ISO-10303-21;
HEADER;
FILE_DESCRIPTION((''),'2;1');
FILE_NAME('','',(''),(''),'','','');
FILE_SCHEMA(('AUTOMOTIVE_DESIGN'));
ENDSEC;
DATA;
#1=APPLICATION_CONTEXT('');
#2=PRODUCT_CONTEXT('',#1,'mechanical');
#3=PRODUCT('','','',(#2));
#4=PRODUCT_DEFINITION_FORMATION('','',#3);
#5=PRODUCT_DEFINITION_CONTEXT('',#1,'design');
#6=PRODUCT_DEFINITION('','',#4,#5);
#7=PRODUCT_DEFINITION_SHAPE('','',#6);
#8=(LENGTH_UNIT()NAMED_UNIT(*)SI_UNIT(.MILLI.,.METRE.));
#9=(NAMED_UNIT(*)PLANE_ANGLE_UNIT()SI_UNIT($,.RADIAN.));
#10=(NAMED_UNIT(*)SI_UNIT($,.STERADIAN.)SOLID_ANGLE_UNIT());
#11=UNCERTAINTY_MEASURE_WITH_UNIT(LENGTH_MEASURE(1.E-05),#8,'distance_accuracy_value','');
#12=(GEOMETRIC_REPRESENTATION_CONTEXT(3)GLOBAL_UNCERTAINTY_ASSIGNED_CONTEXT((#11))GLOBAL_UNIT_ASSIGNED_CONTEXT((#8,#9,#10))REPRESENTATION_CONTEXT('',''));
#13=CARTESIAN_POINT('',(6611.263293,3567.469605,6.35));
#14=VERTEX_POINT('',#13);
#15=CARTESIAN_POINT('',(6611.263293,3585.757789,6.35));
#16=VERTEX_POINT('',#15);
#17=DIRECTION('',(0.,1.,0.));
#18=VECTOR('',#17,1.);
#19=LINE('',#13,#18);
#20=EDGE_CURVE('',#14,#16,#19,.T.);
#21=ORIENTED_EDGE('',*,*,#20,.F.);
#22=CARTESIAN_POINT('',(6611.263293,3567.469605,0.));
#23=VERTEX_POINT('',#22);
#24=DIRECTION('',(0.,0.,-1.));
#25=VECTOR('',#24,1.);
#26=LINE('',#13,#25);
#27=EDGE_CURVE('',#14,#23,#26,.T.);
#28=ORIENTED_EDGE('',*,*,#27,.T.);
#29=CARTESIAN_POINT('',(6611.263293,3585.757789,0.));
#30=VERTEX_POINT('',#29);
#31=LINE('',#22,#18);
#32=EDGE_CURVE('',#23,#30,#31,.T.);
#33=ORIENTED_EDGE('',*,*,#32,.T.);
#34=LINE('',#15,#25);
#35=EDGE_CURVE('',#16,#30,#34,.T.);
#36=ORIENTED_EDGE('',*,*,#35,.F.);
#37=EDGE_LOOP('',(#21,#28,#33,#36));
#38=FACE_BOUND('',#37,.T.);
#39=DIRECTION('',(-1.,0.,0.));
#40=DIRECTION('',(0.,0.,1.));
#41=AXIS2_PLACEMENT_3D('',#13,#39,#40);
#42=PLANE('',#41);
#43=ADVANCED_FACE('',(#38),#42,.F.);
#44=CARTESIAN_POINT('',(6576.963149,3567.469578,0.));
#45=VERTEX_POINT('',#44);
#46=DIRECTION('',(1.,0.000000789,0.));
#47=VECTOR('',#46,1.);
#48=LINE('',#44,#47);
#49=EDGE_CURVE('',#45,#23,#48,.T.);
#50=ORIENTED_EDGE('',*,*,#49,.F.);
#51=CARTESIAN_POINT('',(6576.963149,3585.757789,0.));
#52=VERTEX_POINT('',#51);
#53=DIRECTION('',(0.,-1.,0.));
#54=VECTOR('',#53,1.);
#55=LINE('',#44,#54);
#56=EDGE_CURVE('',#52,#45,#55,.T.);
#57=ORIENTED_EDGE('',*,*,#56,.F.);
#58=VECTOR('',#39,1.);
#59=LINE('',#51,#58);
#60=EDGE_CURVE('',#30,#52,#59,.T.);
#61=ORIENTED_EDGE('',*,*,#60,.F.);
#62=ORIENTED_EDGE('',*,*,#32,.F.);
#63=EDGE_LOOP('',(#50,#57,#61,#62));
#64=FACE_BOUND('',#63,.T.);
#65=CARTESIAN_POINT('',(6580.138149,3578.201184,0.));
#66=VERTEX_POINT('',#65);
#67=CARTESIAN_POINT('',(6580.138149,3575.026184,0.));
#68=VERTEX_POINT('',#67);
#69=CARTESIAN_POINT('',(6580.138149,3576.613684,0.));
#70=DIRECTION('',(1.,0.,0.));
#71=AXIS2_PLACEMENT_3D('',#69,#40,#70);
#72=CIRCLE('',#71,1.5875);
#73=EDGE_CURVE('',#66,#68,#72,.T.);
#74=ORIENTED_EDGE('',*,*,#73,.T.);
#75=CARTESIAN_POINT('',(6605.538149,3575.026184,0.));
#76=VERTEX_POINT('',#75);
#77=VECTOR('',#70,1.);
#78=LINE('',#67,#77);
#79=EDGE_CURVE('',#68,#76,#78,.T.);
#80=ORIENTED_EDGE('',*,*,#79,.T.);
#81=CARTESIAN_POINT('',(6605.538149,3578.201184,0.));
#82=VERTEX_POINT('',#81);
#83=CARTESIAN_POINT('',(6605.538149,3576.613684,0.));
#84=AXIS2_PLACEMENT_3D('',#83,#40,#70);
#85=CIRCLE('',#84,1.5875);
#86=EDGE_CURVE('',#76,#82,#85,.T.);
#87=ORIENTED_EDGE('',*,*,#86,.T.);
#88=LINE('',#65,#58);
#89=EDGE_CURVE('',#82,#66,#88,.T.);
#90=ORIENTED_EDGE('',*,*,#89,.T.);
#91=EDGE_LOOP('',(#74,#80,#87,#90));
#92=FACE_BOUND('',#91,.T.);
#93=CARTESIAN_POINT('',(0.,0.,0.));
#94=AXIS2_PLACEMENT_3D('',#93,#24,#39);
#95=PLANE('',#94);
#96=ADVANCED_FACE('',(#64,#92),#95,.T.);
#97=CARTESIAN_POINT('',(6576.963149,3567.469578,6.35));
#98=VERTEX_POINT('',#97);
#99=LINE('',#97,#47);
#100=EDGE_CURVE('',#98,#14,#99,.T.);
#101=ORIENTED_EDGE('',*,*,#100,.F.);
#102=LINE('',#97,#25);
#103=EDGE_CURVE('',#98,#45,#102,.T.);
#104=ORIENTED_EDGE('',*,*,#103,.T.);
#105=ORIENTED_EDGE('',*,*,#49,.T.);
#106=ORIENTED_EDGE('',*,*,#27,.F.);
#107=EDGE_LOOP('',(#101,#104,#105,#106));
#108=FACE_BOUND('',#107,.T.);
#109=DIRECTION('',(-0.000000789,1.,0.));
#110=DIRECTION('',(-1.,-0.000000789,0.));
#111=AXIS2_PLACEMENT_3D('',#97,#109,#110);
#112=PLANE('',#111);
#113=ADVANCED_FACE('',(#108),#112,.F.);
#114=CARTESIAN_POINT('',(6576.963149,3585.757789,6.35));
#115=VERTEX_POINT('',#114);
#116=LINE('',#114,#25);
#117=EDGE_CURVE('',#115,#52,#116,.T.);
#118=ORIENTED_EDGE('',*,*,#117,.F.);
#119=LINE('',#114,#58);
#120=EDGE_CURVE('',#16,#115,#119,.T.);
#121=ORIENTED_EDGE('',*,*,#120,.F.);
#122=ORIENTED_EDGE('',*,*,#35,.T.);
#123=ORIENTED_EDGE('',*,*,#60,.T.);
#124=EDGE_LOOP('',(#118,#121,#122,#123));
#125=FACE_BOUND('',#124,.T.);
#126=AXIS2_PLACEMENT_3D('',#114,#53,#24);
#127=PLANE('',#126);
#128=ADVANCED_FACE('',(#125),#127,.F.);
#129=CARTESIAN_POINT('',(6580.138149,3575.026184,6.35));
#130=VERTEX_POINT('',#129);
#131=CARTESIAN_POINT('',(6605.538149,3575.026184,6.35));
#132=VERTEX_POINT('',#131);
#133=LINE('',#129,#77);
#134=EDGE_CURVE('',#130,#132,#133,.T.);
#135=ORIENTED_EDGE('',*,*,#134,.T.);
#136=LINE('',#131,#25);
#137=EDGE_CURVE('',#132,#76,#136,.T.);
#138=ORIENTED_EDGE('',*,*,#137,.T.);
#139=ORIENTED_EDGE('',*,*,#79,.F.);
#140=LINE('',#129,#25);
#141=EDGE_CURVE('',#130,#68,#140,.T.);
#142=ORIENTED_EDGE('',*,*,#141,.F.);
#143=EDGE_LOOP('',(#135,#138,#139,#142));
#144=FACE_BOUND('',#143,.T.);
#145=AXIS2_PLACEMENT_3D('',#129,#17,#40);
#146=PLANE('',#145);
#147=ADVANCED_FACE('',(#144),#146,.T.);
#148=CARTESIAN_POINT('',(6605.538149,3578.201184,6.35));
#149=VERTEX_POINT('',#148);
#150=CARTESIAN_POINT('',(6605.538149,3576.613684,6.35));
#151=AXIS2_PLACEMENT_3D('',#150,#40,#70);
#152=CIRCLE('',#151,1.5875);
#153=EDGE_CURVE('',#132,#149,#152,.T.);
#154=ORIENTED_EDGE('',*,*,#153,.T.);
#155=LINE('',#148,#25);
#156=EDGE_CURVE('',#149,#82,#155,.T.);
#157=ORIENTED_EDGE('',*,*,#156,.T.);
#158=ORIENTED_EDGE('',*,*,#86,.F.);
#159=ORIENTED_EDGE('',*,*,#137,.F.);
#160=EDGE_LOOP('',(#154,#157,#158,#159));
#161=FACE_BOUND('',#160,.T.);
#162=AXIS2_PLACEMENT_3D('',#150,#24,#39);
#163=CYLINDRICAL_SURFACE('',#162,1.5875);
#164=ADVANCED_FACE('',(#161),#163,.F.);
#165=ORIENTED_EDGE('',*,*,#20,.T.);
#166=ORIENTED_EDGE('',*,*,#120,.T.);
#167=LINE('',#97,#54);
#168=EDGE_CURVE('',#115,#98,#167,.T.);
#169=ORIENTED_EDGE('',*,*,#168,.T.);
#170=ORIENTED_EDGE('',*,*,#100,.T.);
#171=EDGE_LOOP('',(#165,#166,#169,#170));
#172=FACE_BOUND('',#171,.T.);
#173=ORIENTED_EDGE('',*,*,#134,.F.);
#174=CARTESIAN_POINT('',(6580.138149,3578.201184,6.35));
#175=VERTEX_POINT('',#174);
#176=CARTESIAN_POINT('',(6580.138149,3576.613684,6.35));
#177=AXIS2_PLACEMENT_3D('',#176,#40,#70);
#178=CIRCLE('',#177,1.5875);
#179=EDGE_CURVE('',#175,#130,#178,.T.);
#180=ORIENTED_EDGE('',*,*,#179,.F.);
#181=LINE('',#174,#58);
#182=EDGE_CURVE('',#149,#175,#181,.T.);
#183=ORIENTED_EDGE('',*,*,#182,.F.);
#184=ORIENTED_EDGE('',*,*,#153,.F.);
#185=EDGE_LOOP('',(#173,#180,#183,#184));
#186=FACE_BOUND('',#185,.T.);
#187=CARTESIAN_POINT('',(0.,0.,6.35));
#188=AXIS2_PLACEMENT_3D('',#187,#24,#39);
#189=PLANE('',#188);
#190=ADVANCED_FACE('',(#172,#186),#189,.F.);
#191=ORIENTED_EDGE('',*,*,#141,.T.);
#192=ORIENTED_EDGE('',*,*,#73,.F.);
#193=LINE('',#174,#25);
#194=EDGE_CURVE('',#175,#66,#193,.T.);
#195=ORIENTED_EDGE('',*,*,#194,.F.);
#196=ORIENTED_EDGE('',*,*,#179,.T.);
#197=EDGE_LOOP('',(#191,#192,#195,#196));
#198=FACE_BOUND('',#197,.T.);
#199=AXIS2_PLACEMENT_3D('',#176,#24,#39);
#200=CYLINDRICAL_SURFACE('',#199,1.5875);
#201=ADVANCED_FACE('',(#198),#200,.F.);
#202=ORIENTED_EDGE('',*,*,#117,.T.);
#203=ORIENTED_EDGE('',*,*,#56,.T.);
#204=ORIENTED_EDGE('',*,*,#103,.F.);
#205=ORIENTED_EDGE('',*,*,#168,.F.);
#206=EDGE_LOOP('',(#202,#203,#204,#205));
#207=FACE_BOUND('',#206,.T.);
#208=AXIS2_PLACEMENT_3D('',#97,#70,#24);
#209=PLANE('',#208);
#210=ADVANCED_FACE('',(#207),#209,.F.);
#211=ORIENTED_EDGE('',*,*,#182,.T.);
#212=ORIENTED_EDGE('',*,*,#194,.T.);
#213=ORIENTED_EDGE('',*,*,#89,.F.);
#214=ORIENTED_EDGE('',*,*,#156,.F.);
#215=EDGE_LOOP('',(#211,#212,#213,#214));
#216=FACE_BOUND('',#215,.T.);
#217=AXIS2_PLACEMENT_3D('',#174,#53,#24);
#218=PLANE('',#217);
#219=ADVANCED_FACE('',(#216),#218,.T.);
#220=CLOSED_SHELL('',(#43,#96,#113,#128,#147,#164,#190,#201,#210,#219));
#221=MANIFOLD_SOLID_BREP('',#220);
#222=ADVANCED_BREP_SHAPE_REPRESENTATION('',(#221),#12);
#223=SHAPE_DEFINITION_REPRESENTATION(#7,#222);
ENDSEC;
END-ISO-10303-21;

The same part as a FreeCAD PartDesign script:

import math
import FreeCAD as App
import Part
import Sketcher
Q = App.Units.Quantity


def add_polygon(sketch, points):
    """Adds a closed chain of lines whose ends are joined by coincident constraints."""
    first, n = sketch.GeometryCount, len(points)
    for a, b in zip(points, points[1:] + points[:1]):
        sketch.addGeometry(Part.LineSegment(App.Vector(*a, 0), App.Vector(*b, 0)), False)
    for i in range(n):
        sketch.addConstraint(Sketcher.Constraint("Coincident", first + i, 2, first + (i + 1) % n, 1))

doc = App.newDocument("Part")
body = doc.addObject("PartDesign::Body", "Body")

sketch1 = doc.addObject("Sketcher::SketchObject", "Sketch")
body.addObject(sketch1)
sketch1.AttachmentSupport = (doc.XY_Plane, [""])
sketch1.MapMode = "FlatFace"
add_polygon(sketch1, [(6611.263293, 3585.757789), (6576.963149, 3585.757789), (6576.963149, 3567.469578), (6611.263293, 3567.469605)])
sketch1.addGeometry(Part.LineSegment(App.Vector(6580.138149, 3578.201184, 0), App.Vector(6605.538149, 3578.201184, 0)), False)
sketch1.addGeometry(Part.ArcOfCircle(Part.Circle(App.Vector(6605.538149, 3576.613684, 0), App.Vector(0, 0, 1), 1.5875), math.radians(-90), math.radians(90)), False)
sketch1.addGeometry(Part.LineSegment(App.Vector(6605.538149, 3575.026184, 0), App.Vector(6580.138149, 3575.026184, 0)), False)
sketch1.addGeometry(Part.ArcOfCircle(Part.Circle(App.Vector(6580.138149, 3576.613684, 0), App.Vector(0, 0, 1), 1.5875), math.radians(90), math.radians(270)), False)
sketch1.addConstraint(Sketcher.Constraint("Tangent", 4, 2, 5, 2))
sketch1.addConstraint(Sketcher.Constraint("Tangent", 5, 1, 6, 1))
sketch1.addConstraint(Sketcher.Constraint("Tangent", 6, 2, 7, 2))
sketch1.addConstraint(Sketcher.Constraint("Tangent", 7, 1, 4, 1))
sketch1.addConstraint(Sketcher.Constraint("Horizontal", 0))
sketch1.addConstraint(Sketcher.Constraint("Vertical", 1))
sketch1.addConstraint(Sketcher.Constraint("Vertical", 3))
sketch1.addConstraint(Sketcher.Constraint("Horizontal", 4))
sketch1.addConstraint(Sketcher.Constraint("Horizontal", 6))
sketch1.addConstraint(Sketcher.Constraint("DistanceX", 4, 1, 4, 2, Q("1 in")))
sketch1.addConstraint(Sketcher.Constraint("Radius", 5, Q("0.0625 in")))
sketch1.addConstraint(Sketcher.Constraint("DistanceX", 0, 2, 7, 3, Q("0.125 in")))
sketch1.addConstraint(Sketcher.Constraint("DistanceY", 1, 2, 1, 1, Q("18.288211 mm")))
sketch1.addConstraint(Sketcher.Constraint("DistanceX", 0, 2, 0, 1, Q("34.300144 mm")))
sketch1.addConstraint(Sketcher.Constraint("DistanceY", 3, 1, 3, 2, Q("18.288184 mm")))
sketch1.addConstraint(Sketcher.Constraint("DistanceX", -1, 1, 5, 3, Q("6605.538149 mm")))
sketch1.addConstraint(Sketcher.Constraint("DistanceY", -1, 1, 0, 2, Q("3585.757789 mm")))
sketch1.addConstraint(Sketcher.Constraint("DistanceY", 2, 2, 5, 3, Q("9.144079 mm")))
pad1 = doc.addObject("PartDesign::Pad", "Pad")
body.addObject(pad1)
pad1.Profile = sketch1
pad1.Length = Q("0.25 in")

doc.recompute()
